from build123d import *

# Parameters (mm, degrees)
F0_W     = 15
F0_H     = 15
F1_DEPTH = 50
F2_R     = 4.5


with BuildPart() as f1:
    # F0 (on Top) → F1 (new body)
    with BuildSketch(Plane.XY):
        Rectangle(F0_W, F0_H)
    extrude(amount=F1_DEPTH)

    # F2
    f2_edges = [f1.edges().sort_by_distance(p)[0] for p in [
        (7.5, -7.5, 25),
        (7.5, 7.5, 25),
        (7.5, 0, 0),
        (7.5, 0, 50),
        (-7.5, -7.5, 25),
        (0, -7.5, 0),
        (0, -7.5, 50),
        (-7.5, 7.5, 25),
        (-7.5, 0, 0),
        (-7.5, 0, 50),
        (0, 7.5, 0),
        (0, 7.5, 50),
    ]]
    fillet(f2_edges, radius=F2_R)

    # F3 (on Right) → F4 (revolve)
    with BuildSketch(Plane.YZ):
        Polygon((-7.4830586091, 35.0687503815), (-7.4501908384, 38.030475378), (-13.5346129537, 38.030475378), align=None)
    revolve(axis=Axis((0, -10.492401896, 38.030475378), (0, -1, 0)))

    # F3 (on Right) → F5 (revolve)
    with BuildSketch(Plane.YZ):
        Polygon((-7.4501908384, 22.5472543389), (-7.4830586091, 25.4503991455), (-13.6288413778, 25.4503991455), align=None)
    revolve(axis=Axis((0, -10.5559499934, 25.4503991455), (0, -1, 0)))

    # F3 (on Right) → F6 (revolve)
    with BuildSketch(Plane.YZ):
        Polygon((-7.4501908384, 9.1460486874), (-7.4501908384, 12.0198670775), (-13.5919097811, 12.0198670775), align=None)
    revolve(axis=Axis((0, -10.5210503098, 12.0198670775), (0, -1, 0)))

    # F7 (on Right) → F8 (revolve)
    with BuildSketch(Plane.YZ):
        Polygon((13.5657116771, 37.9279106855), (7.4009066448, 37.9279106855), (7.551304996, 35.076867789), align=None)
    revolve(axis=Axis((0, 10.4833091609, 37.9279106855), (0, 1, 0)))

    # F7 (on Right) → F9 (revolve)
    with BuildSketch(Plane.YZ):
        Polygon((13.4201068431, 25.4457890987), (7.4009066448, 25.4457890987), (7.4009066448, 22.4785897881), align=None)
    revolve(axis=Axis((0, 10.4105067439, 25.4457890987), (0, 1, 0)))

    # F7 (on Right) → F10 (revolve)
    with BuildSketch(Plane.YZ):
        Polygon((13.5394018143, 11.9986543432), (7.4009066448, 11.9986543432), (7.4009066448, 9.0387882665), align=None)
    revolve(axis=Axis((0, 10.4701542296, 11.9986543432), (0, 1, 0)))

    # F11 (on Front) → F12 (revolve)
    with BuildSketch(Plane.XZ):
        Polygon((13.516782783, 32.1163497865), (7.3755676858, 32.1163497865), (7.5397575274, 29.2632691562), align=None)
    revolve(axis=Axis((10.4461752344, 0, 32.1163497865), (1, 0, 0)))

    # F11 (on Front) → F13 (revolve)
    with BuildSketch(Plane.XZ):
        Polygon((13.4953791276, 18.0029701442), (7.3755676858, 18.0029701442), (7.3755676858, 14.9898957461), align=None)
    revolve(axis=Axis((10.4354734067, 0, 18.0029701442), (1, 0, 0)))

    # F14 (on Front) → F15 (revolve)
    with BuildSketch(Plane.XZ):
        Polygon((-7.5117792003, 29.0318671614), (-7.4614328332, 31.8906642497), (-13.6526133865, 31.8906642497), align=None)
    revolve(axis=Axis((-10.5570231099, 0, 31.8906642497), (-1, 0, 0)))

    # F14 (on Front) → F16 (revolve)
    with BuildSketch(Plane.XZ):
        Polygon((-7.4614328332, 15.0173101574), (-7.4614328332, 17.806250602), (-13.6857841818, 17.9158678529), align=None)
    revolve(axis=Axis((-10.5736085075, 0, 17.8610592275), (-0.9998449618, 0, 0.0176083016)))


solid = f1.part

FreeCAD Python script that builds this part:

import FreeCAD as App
import Part
import Sketcher
Q = App.Units.Quantity

doc = App.newDocument("Part")
body = doc.addObject("PartDesign::Body", "Body")

# Sketch on XY plane
sketch1 = doc.addObject("Sketcher::SketchObject", "Sketch")
body.addObject(sketch1)
sketch1.AttachmentSupport = (doc.XY_Plane, [""])
sketch1.MapMode = "FlatFace"
sketch1.addGeometry(Part.LineSegment(App.Vector(-8, 8, 0), App.Vector(-8, -8, 0)), False)
sketch1.addGeometry(Part.LineSegment(App.Vector(-8, -8, 0), App.Vector(8, -8, 0)), False)
sketch1.addGeometry(Part.LineSegment(App.Vector(8, -8, 0), App.Vector(8, 8, 0)), False)
sketch1.addGeometry(Part.LineSegment(App.Vector(8, 8, 0), App.Vector(-8, 8, 0)), False)
sketch1.addConstraint(Sketcher.Constraint("Coincident", 0, 2, 1, 1))
sketch1.addConstraint(Sketcher.Constraint("Coincident", 1, 2, 2, 1))
sketch1.addConstraint(Sketcher.Constraint("Coincident", 2, 2, 3, 1))
sketch1.addConstraint(Sketcher.Constraint("Coincident", 3, 2, 0, 1))
sketch1.addConstraint(Sketcher.Constraint("Vertical", 0))
sketch1.addConstraint(Sketcher.Constraint("Horizontal", 1))
sketch1.addConstraint(Sketcher.Constraint("Vertical", 2))
sketch1.addConstraint(Sketcher.Constraint("Horizontal", 3))
sketch1.addConstraint(Sketcher.Constraint("Symmetric", 0, 2, 2, 2, -1, 1))
sketch1.addConstraint(Sketcher.Constraint("Equal", 3, 0))
sketch1.addConstraint(Sketcher.Constraint("DistanceX", 1, 1, 1, 2, Q("15 mm")))
pad1 = doc.addObject("PartDesign::Pad", "Pad")
body.addObject(pad1)
pad1.Profile = sketch1
pad1.Length = 50
doc.recompute()

fillet = doc.addObject("PartDesign::Fillet", "Fillet")
body.addObject(fillet)
fillet.Base = (pad1, ["Edge1"])
fillet.UseAllEdges = True
fillet.Radius = 4.5

# Sketch on YZ plane
sketch2 = doc.addObject("Sketcher::SketchObject", "Sketch001")
body.addObject(sketch2)
sketch2.AttachmentSupport = (doc.YZ_Plane, [""])
sketch2.MapMode = "FlatFace"
sketch2.addGeometry(Part.LineSegment(App.Vector(-7.5, 35.1, 0), App.Vector(-7.5, 38, 0)), False)
sketch2.addGeometry(Part.LineSegment(App.Vector(-7.5, 38, 0), App.Vector(-13.5, 38, 0)), False)
sketch2.addGeometry(Part.LineSegment(App.Vector(-13.5, 38, 0), App.Vector(-7.5, 35.1, 0)), False)
sketch2.addGeometry(Part.LineSegment(App.Vector(-7.5, 38, 0), App.Vector(-13.5, 38, 0)), True)  # axis
sketch2.addConstraint(Sketcher.Constraint("Coincident", 0, 2, 1, 1))
sketch2.addConstraint(Sketcher.Constraint("Coincident", 1, 2, 2, 1))
sketch2.addConstraint(Sketcher.Constraint("Coincident", 2, 2, 0, 1))
sketch2.addConstraint(Sketcher.Constraint("Horizontal", 1))
sketch2.addConstraint(Sketcher.Constraint("Horizontal", 3))
sketch2.addConstraint(Sketcher.Constraint("Coincident", 3, 1, 0, 2))
sketch2.addConstraint(Sketcher.Constraint("Equal", 1, 3))
sketch2.addConstraint(Sketcher.Constraint("DistanceX", 1, 2, 1, 1, Q("6.084422 mm")))
sketch2.addConstraint(Sketcher.Constraint("DistanceX", 0, 2, -1, 1, Q("7.450191 mm")))
sketch2.addConstraint(Sketcher.Constraint("DistanceX", 2, 2, -1, 1, Q("7.483059 mm")))
sketch2.addConstraint(Sketcher.Constraint("DistanceY", -1, 1, 2, 2, Q("35.06875 mm")))
sketch2.addConstraint(Sketcher.Constraint("Distance", 0, Q("2.961907 mm")))
revolution = doc.addObject("PartDesign::Revolution", "Revolution")
body.addObject(revolution)
revolution.Profile = sketch2
revolution.ReferenceAxis = (sketch2, ["Axis0"])
revolution.Angle = 360

# Sketch on YZ plane
sketch3 = doc.addObject("Sketcher::SketchObject", "Sketch002")
body.addObject(sketch3)
sketch3.AttachmentSupport = (doc.YZ_Plane, [""])
sketch3.MapMode = "FlatFace"
sketch3.addGeometry(Part.LineSegment(App.Vector(-7.450191, 22.547254, 0), App.Vector(-7.483059, 25.450399, 0)), False)
sketch3.addGeometry(Part.LineSegment(App.Vector(-7.483059, 25.450399, 0), App.Vector(-13.628841, 25.450399, 0)), False)
sketch3.addGeometry(Part.LineSegment(App.Vector(-13.628841, 25.450399, 0), App.Vector(-7.450191, 22.547254, 0)), False)
sketch3.addGeometry(Part.LineSegment(App.Vector(-7.450191, 25.450399, 0), App.Vector(-13.628841, 25.450399, 0)), True)  # axis
sketch3.addConstraint(Sketcher.Constraint("Coincident", 0, 2, 1, 1))
sketch3.addConstraint(Sketcher.Constraint("Coincident", 1, 2, 2, 1))
sketch3.addConstraint(Sketcher.Constraint("Coincident", 2, 2, 0, 1))
sketch3.addConstraint(Sketcher.Constraint("Horizontal", 1))
sketch3.addConstraint(Sketcher.Constraint("Horizontal", 3))
sketch3.addConstraint(Sketcher.Constraint("Coincident", 3, 2, 1, 2))
sketch3.addConstraint(Sketcher.Constraint("DistanceX", 3, 2, 3, 1, Q("6.178651 mm")))
sketch3.addConstraint(Sketcher.Constraint("DistanceY", -1, 1, 0, 2, Q("25.450399 mm")))
sketch3.addConstraint(Sketcher.Constraint("Distance", 0, Q("2.903331 mm")))
sketch3.addConstraint(Sketcher.Constraint("Distance", 2, Q("6.82671 mm")))
sketch3.addConstraint(Sketcher.Constraint("DistanceX", 1, 2, 1, 1, Q("6.145783 mm")))
sketch3.addConstraint(Sketcher.Constraint("DistanceX", 0, 2, -1, 1, Q("7.483059 mm")))
revolution2 = doc.addObject("PartDesign::Revolution", "Revolution001")
body.addObject(revolution2)
revolution2.Profile = sketch3
revolution2.ReferenceAxis = (sketch3, ["Axis0"])
revolution2.Angle = 360

# Sketch on YZ plane
sketch4 = doc.addObject("Sketcher::SketchObject", "Sketch003")
body.addObject(sketch4)
sketch4.AttachmentSupport = (doc.YZ_Plane, [""])
sketch4.MapMode = "FlatFace"
sketch4.addGeometry(Part.LineSegment(App.Vector(-7.5, 9.1, 0), App.Vector(-7.5, 12, 0)), False)
sketch4.addGeometry(Part.LineSegment(App.Vector(-7.5, 12, 0), App.Vector(-13.6, 12, 0)), False)
sketch4.addGeometry(Part.LineSegment(App.Vector(-13.6, 12, 0), App.Vector(-7.5, 9.1, 0)), False)
sketch4.addGeometry(Part.LineSegment(App.Vector(-7.5, 12, 0), App.Vector(-13.6, 12, 0)), True)  # axis
sketch4.addConstraint(Sketcher.Constraint("Coincident", 0, 2, 1, 1))
sketch4.addConstraint(Sketcher.Constraint("Coincident", 1, 2, 2, 1))
sketch4.addConstraint(Sketcher.Constraint("Coincident", 2, 2, 0, 1))
sketch4.addConstraint(Sketcher.Constraint("Vertical", 0))
sketch4.addConstraint(Sketcher.Constraint("Horizontal", 1))
sketch4.addConstraint(Sketcher.Constraint("Horizontal", 3))
sketch4.addConstraint(Sketcher.Constraint("Coincident", 3, 1, 0, 2))
sketch4.addConstraint(Sketcher.Constraint("Equal", 1, 3))
sketch4.addConstraint(Sketcher.Constraint("DistanceX", 1, 2, 1, 1, Q("6.141719 mm")))
sketch4.addConstraint(Sketcher.Constraint("DistanceY", 0, 1, 0, 2, Q("2.873818 mm")))
sketch4.addConstraint(Sketcher.Constraint("DistanceX", 0, 2, -1, 1, Q("7.450191 mm")))
sketch4.addConstraint(Sketcher.Constraint("DistanceY", -1, 1, 2, 2, Q("9.146049 mm")))
revolution3 = doc.addObject("PartDesign::Revolution", "Revolution002")
body.addObject(revolution3)
revolution3.Profile = sketch4
revolution3.ReferenceAxis = (sketch4, ["Axis0"])
revolution3.Angle = 360

# Sketch on YZ plane
sketch5 = doc.addObject("Sketcher::SketchObject", "Sketch004")
body.addObject(sketch5)
sketch5.AttachmentSupport = (doc.YZ_Plane, [""])
sketch5.MapMode = "FlatFace"
sketch5.addGeometry(Part.LineSegment(App.Vector(13.6, 37.9, 0), App.Vector(7.4, 37.9, 0)), False)
sketch5.addGeometry(Part.LineSegment(App.Vector(7.4, 37.9, 0), App.Vector(7.6, 35.1, 0)), False)
sketch5.addGeometry(Part.LineSegment(App.Vector(7.6, 35.1, 0), App.Vector(13.6, 37.9, 0)), False)
sketch5.addGeometry(Part.LineSegment(App.Vector(7.4, 37.9, 0), App.Vector(13.6, 37.9, 0)), True)  # axis
sketch5.addConstraint(Sketcher.Constraint("Coincident", 0, 2, 1, 1))
sketch5.addConstraint(Sketcher.Constraint("Coincident", 1, 2, 2, 1))
sketch5.addConstraint(Sketcher.Constraint("Coincident", 2, 2, 0, 1))
sketch5.addConstraint(Sketcher.Constraint("Horizontal", 0))
sketch5.addConstraint(Sketcher.Constraint("Horizontal", 3))
sketch5.addConstraint(Sketcher.Constraint("Coincident", 3, 1, 0, 2))
sketch5.addConstraint(Sketcher.Constraint("Equal", 0, 3))
sketch5.addConstraint(Sketcher.Constraint("DistanceX", 0, 2, 1, 2, Q("0.150398 mm")))
sketch5.addConstraint(Sketcher.Constraint("Distance", 2, Q("6.65594 mm")))
sketch5.addConstraint(Sketcher.Constraint("DistanceX", 0, 2, 0, 1, Q("6.164805 mm")))
sketch5.addConstraint(Sketcher.Constraint("DistanceY", -1, 1, 0, 2, Q("37.927911 mm")))
sketch5.addConstraint(Sketcher.Constraint("DistanceX", -1, 1, 2, 2, Q("13.565712 mm")))
revolution4 = doc.addObject("PartDesign::Revolution", "Revolution003")
body.addObject(revolution4)
revolution4.Profile = sketch5
revolution4.ReferenceAxis = (sketch5, ["Axis0"])
revolution4.Angle = 360

# Sketch on YZ plane
sketch6 = doc.addObject("Sketcher::SketchObject", "Sketch005")
body.addObject(sketch6)
sketch6.AttachmentSupport = (doc.YZ_Plane, [""])
sketch6.MapMode = "FlatFace"
sketch6.addGeometry(Part.LineSegment(App.Vector(13.4, 25.4, 0), App.Vector(7.4, 25.4, 0)), False)
sketch6.addGeometry(Part.LineSegment(App.Vector(7.4, 25.4, 0), App.Vector(7.4, 22.5, 0)), False)
sketch6.addGeometry(Part.LineSegment(App.Vector(7.4, 22.5, 0), App.Vector(13.4, 25.4, 0)), False)
sketch6.addGeometry(Part.LineSegment(App.Vector(7.4, 25.4, 0), App.Vector(13.4, 25.4, 0)), True)  # axis
sketch6.addConstraint(Sketcher.Constraint("Coincident", 0, 2, 1, 1))
sketch6.addConstraint(Sketcher.Constraint("Coincident", 1, 2, 2, 1))
sketch6.addConstraint(Sketcher.Constraint("Coincident", 2, 2, 0, 1))
sketch6.addConstraint(Sketcher.Constraint("Horizontal", 0))
sketch6.addConstraint(Sketcher.Constraint("Vertical", 1))
sketch6.addConstraint(Sketcher.Constraint("Horizontal", 3))
sketch6.addConstraint(Sketcher.Constraint("Coincident", 3, 1, 0, 2))
sketch6.addConstraint(Sketcher.Constraint("Equal", 0, 3))
sketch6.addConstraint(Sketcher.Constraint("DistanceX", 0, 2, 0, 1, Q("6.0192 mm")))
sketch6.addConstraint(Sketcher.Constraint("DistanceY", 1, 2, 1, 1, Q("2.967199 mm")))
sketch6.addConstraint(Sketcher.Constraint("DistanceY", -1, 1, 0, 2, Q("25.445789 mm")))
sketch6.addConstraint(Sketcher.Constraint("DistanceX", -1, 1, 0, 2, Q("7.400907 mm")))
revolution5 = doc.addObject("PartDesign::Revolution", "Revolution004")
body.addObject(revolution5)
revolution5.Profile = sketch6
revolution5.ReferenceAxis = (sketch6, ["Axis0"])
revolution5.Angle = 360

# Sketch on YZ plane
sketch7 = doc.addObject("Sketcher::SketchObject", "Sketch006")
body.addObject(sketch7)
sketch7.AttachmentSupport = (doc.YZ_Plane, [""])
sketch7.MapMode = "FlatFace"
sketch7.addGeometry(Part.LineSegment(App.Vector(13.5, 12, 0), App.Vector(7.4, 12, 0)), False)
sketch7.addGeometry(Part.LineSegment(App.Vector(7.4, 12, 0), App.Vector(7.4, 9, 0)), False)
sketch7.addGeometry(Part.LineSegment(App.Vector(7.4, 9, 0), App.Vector(13.5, 12, 0)), False)
sketch7.addGeometry(Part.LineSegment(App.Vector(7.4, 12, 0), App.Vector(13.5, 12, 0)), True)  # axis
sketch7.addConstraint(Sketcher.Constraint("Coincident", 0, 2, 1, 1))
sketch7.addConstraint(Sketcher.Constraint("Coincident", 1, 2, 2, 1))
sketch7.addConstraint(Sketcher.Constraint("Coincident", 2, 2, 0, 1))
sketch7.addConstraint(Sketcher.Constraint("Horizontal", 0))
sketch7.addConstraint(Sketcher.Constraint("Vertical", 1))
sketch7.addConstraint(Sketcher.Constraint("Horizontal", 3))
sketch7.addConstraint(Sketcher.Constraint("Coincident", 3, 1, 0, 2))
sketch7.addConstraint(Sketcher.Constraint("Equal", 0, 3))
sketch7.addConstraint(Sketcher.Constraint("DistanceX", -1, 1, 2, 2, Q("13.539402 mm")))
sketch7.addConstraint(Sketcher.Constraint("Distance", 2, Q("6.814832 mm")))
sketch7.addConstraint(Sketcher.Constraint("DistanceX", 0, 2, 0, 1, Q("6.138495 mm")))
sketch7.addConstraint(Sketcher.Constraint("DistanceY", -1, 1, 1, 2, Q("9.038788 mm")))
revolution6 = doc.addObject("PartDesign::Revolution", "Revolution005")
body.addObject(revolution6)
revolution6.Profile = sketch7
revolution6.ReferenceAxis = (sketch7, ["Axis0"])
revolution6.Angle = 360

# Sketch on XZ plane
sketch8 = doc.addObject("Sketcher::SketchObject", "Sketch007")
body.addObject(sketch8)
sketch8.AttachmentSupport = (doc.XZ_Plane, [""])
sketch8.MapMode = "FlatFace"
sketch8.addGeometry(Part.LineSegment(App.Vector(13.5, 32.1, 0), App.Vector(7.4, 32.1, 0)), False)
sketch8.addGeometry(Part.LineSegment(App.Vector(7.4, 32.1, 0), App.Vector(7.5, 29.3, 0)), False)
sketch8.addGeometry(Part.LineSegment(App.Vector(7.5, 29.3, 0), App.Vector(13.5, 32.1, 0)), False)
sketch8.addGeometry(Part.LineSegment(App.Vector(7.4, 32.1, 0), App.Vector(13.5, 32.1, 0)), True)  # axis
sketch8.addConstraint(Sketcher.Constraint("Coincident", 0, 2, 1, 1))
sketch8.addConstraint(Sketcher.Constraint("Coincident", 1, 2, 2, 1))
sketch8.addConstraint(Sketcher.Constraint("Coincident", 2, 2, 0, 1))
sketch8.addConstraint(Sketcher.Constraint("Horizontal", 0))
sketch8.addConstraint(Sketcher.Constraint("Horizontal", 3))
sketch8.addConstraint(Sketcher.Constraint("Coincident", 3, 1, 0, 2))
sketch8.addConstraint(Sketcher.Constraint("Equal", 0, 3))
sketch8.addConstraint(Sketcher.Constraint("Distance", 1, Q("2.857801 mm")))
sketch8.addConstraint(Sketcher.Constraint("Distance", 2, Q("6.623058 mm")))
sketch8.addConstraint(Sketcher.Constraint("DistanceX", 0, 2, 0, 1, Q("6.141215 mm")))
sketch8.addConstraint(Sketcher.Constraint("DistanceY", -1, 1, 0, 2, Q("32.11635 mm")))
sketch8.addConstraint(Sketcher.Constraint("DistanceX", -1, 1, 0, 2, Q("7.375568 mm")))
revolution7 = doc.addObject("PartDesign::Revolution", "Revolution006")
body.addObject(revolution7)
revolution7.Profile = sketch8
revolution7.ReferenceAxis = (sketch8, ["Axis0"])
revolution7.Angle = 360

# Sketch on XZ plane
sketch9 = doc.addObject("Sketcher::SketchObject", "Sketch008")
body.addObject(sketch9)
sketch9.AttachmentSupport = (doc.XZ_Plane, [""])
sketch9.MapMode = "FlatFace"
sketch9.addGeometry(Part.LineSegment(App.Vector(13.5, 18, 0), App.Vector(7.4, 18, 0)), False)
sketch9.addGeometry(Part.LineSegment(App.Vector(7.4, 18, 0), App.Vector(7.4, 15, 0)), False)
sketch9.addGeometry(Part.LineSegment(App.Vector(7.4, 15, 0), App.Vector(13.5, 18, 0)), False)
sketch9.addGeometry(Part.LineSegment(App.Vector(7.4, 18, 0), App.Vector(13.5, 18, 0)), True)  # axis
sketch9.addConstraint(Sketcher.Constraint("Coincident", 0, 2, 1, 1))
sketch9.addConstraint(Sketcher.Constraint("Coincident", 1, 2, 2, 1))
sketch9.addConstraint(Sketcher.Constraint("Coincident", 2, 2, 0, 1))
sketch9.addConstraint(Sketcher.Constraint("Horizontal", 0))
sketch9.addConstraint(Sketcher.Constraint("Vertical", 1))
sketch9.addConstraint(Sketcher.Constraint("Horizontal", 3))
sketch9.addConstraint(Sketcher.Constraint("Coincident", 3, 1, 0, 2))
sketch9.addConstraint(Sketcher.Constraint("Equal", 0, 3))
sketch9.addConstraint(Sketcher.Constraint("DistanceX", 0, 2, 0, 1, Q("6.119811 mm")))
sketch9.addConstraint(Sketcher.Constraint("DistanceY", 1, 2, 1, 1, Q("3.013074 mm")))
sketch9.addConstraint(Sketcher.Constraint("DistanceY", -1, 1, 0, 2, Q("18.00297 mm")))
sketch9.addConstraint(Sketcher.Constraint("DistanceX", -1, 1, 2, 2, Q("13.495379 mm")))
revolution8 = doc.addObject("PartDesign::Revolution", "Revolution007")
body.addObject(revolution8)
revolution8.Profile = sketch9
revolution8.ReferenceAxis = (sketch9, ["Axis0"])
revolution8.Angle = 360

# Sketch on XZ plane
sketch10 = doc.addObject("Sketcher::SketchObject", "Sketch009")
body.addObject(sketch10)
sketch10.AttachmentSupport = (doc.XZ_Plane, [""])
sketch10.MapMode = "FlatFace"
sketch10.addGeometry(Part.LineSegment(App.Vector(-7.5, 29, 0), App.Vector(-7.5, 31.9, 0)), False)
sketch10.addGeometry(Part.LineSegment(App.Vector(-7.5, 31.9, 0), App.Vector(-13.7, 31.9, 0)), False)
sketch10.addGeometry(Part.LineSegment(App.Vector(-13.7, 31.9, 0), App.Vector(-7.5, 29, 0)), False)
sketch10.addGeometry(Part.LineSegment(App.Vector(-7.5, 31.9, 0), App.Vector(-13.7, 31.9, 0)), True)  # axis
sketch10.addConstraint(Sketcher.Constraint("Coincident", 0, 2, 1, 1))
sketch10.addConstraint(Sketcher.Constraint("Coincident", 1, 2, 2, 1))
sketch10.addConstraint(Sketcher.Constraint("Coincident", 2, 2, 0, 1))
sketch10.addConstraint(Sketcher.Constraint("Horizontal", 1))
sketch10.addConstraint(Sketcher.Constraint("Horizontal", 3))
sketch10.addConstraint(Sketcher.Constraint("Coincident", 3, 1, 0, 2))
sketch10.addConstraint(Sketcher.Constraint("Equal", 1, 3))
sketch10.addConstraint(Sketcher.Constraint("DistanceX", 1, 2, 1, 1, Q("6.191181 mm")))
sketch10.addConstraint(Sketcher.Constraint("Distance", 0, Q("2.85924 mm")))
sketch10.addConstraint(Sketcher.Constraint("DistanceX", 2, 2, -1, 1, Q("7.511779 mm")))
sketch10.addConstraint(Sketcher.Constraint("Distance", 2, Q("6.773667 mm")))
sketch10.addConstraint(Sketcher.Constraint("DistanceY", -1, 1, 0, 2, Q("31.890664 mm")))
revolution9 = doc.addObject("PartDesign::Revolution", "Revolution008")
body.addObject(revolution9)
revolution9.Profile = sketch10
revolution9.ReferenceAxis = (sketch10, ["Axis0"])
revolution9.Angle = 360

# Sketch on XZ plane
sketch11 = doc.addObject("Sketcher::SketchObject", "Sketch010")
body.addObject(sketch11)
sketch11.AttachmentSupport = (doc.XZ_Plane, [""])
sketch11.MapMode = "FlatFace"
sketch11.addGeometry(Part.LineSegment(App.Vector(-7.5, 15, 0), App.Vector(-7.5, 17.8, 0)), False)
sketch11.addGeometry(Part.LineSegment(App.Vector(-7.5, 17.8, 0), App.Vector(-13.7, 17.9, 0)), False)
sketch11.addGeometry(Part.LineSegment(App.Vector(-13.7, 17.9, 0), App.Vector(-7.5, 15, 0)), False)
sketch11.addGeometry(Part.LineSegment(App.Vector(-7.4, 17.8, 0), App.Vector(-13.7, 17.9, 0)), True)  # axis
sketch11.addConstraint(Sketcher.Constraint("Coincident", 0, 2, 1, 1))
sketch11.addConstraint(Sketcher.Constraint("Coincident", 1, 2, 2, 1))
sketch11.addConstraint(Sketcher.Constraint("Coincident", 2, 2, 0, 1))
sketch11.addConstraint(Sketcher.Constraint("Vertical", 0))
sketch11.addConstraint(Sketcher.Constraint("Coincident", 3, 2, 1, 2))
sketch11.addConstraint(Sketcher.Constraint("Parallel", 1, 3))
sketch11.addConstraint(Sketcher.Constraint("DistanceY", 0, 1, 0, 2, Q("2.78894 mm")))
sketch11.addConstraint(Sketcher.Constraint("DistanceX", 0, 2, 3, 1, Q("0.049101 mm")))
sketch11.addConstraint(Sketcher.Constraint("DistanceY", -1, 1, 0, 2, Q("17.806251 mm")))
sketch11.addConstraint(Sketcher.Constraint("DistanceX", 3, 1, -1, 1, Q("7.412332 mm")))
sketch11.addConstraint(Sketcher.Constraint("DistanceX", 1, 2, 0, 2, Q("6.224351 mm")))
sketch11.addConstraint(Sketcher.Constraint("DistanceY", 3, 1, 1, 2, Q("0.110482 mm")))
revolution10 = doc.addObject("PartDesign::Revolution", "Revolution009")
body.addObject(revolution10)
revolution10.Profile = sketch11
revolution10.ReferenceAxis = (sketch11, ["Axis0"])
revolution10.Angle = 360

doc.recompute()
